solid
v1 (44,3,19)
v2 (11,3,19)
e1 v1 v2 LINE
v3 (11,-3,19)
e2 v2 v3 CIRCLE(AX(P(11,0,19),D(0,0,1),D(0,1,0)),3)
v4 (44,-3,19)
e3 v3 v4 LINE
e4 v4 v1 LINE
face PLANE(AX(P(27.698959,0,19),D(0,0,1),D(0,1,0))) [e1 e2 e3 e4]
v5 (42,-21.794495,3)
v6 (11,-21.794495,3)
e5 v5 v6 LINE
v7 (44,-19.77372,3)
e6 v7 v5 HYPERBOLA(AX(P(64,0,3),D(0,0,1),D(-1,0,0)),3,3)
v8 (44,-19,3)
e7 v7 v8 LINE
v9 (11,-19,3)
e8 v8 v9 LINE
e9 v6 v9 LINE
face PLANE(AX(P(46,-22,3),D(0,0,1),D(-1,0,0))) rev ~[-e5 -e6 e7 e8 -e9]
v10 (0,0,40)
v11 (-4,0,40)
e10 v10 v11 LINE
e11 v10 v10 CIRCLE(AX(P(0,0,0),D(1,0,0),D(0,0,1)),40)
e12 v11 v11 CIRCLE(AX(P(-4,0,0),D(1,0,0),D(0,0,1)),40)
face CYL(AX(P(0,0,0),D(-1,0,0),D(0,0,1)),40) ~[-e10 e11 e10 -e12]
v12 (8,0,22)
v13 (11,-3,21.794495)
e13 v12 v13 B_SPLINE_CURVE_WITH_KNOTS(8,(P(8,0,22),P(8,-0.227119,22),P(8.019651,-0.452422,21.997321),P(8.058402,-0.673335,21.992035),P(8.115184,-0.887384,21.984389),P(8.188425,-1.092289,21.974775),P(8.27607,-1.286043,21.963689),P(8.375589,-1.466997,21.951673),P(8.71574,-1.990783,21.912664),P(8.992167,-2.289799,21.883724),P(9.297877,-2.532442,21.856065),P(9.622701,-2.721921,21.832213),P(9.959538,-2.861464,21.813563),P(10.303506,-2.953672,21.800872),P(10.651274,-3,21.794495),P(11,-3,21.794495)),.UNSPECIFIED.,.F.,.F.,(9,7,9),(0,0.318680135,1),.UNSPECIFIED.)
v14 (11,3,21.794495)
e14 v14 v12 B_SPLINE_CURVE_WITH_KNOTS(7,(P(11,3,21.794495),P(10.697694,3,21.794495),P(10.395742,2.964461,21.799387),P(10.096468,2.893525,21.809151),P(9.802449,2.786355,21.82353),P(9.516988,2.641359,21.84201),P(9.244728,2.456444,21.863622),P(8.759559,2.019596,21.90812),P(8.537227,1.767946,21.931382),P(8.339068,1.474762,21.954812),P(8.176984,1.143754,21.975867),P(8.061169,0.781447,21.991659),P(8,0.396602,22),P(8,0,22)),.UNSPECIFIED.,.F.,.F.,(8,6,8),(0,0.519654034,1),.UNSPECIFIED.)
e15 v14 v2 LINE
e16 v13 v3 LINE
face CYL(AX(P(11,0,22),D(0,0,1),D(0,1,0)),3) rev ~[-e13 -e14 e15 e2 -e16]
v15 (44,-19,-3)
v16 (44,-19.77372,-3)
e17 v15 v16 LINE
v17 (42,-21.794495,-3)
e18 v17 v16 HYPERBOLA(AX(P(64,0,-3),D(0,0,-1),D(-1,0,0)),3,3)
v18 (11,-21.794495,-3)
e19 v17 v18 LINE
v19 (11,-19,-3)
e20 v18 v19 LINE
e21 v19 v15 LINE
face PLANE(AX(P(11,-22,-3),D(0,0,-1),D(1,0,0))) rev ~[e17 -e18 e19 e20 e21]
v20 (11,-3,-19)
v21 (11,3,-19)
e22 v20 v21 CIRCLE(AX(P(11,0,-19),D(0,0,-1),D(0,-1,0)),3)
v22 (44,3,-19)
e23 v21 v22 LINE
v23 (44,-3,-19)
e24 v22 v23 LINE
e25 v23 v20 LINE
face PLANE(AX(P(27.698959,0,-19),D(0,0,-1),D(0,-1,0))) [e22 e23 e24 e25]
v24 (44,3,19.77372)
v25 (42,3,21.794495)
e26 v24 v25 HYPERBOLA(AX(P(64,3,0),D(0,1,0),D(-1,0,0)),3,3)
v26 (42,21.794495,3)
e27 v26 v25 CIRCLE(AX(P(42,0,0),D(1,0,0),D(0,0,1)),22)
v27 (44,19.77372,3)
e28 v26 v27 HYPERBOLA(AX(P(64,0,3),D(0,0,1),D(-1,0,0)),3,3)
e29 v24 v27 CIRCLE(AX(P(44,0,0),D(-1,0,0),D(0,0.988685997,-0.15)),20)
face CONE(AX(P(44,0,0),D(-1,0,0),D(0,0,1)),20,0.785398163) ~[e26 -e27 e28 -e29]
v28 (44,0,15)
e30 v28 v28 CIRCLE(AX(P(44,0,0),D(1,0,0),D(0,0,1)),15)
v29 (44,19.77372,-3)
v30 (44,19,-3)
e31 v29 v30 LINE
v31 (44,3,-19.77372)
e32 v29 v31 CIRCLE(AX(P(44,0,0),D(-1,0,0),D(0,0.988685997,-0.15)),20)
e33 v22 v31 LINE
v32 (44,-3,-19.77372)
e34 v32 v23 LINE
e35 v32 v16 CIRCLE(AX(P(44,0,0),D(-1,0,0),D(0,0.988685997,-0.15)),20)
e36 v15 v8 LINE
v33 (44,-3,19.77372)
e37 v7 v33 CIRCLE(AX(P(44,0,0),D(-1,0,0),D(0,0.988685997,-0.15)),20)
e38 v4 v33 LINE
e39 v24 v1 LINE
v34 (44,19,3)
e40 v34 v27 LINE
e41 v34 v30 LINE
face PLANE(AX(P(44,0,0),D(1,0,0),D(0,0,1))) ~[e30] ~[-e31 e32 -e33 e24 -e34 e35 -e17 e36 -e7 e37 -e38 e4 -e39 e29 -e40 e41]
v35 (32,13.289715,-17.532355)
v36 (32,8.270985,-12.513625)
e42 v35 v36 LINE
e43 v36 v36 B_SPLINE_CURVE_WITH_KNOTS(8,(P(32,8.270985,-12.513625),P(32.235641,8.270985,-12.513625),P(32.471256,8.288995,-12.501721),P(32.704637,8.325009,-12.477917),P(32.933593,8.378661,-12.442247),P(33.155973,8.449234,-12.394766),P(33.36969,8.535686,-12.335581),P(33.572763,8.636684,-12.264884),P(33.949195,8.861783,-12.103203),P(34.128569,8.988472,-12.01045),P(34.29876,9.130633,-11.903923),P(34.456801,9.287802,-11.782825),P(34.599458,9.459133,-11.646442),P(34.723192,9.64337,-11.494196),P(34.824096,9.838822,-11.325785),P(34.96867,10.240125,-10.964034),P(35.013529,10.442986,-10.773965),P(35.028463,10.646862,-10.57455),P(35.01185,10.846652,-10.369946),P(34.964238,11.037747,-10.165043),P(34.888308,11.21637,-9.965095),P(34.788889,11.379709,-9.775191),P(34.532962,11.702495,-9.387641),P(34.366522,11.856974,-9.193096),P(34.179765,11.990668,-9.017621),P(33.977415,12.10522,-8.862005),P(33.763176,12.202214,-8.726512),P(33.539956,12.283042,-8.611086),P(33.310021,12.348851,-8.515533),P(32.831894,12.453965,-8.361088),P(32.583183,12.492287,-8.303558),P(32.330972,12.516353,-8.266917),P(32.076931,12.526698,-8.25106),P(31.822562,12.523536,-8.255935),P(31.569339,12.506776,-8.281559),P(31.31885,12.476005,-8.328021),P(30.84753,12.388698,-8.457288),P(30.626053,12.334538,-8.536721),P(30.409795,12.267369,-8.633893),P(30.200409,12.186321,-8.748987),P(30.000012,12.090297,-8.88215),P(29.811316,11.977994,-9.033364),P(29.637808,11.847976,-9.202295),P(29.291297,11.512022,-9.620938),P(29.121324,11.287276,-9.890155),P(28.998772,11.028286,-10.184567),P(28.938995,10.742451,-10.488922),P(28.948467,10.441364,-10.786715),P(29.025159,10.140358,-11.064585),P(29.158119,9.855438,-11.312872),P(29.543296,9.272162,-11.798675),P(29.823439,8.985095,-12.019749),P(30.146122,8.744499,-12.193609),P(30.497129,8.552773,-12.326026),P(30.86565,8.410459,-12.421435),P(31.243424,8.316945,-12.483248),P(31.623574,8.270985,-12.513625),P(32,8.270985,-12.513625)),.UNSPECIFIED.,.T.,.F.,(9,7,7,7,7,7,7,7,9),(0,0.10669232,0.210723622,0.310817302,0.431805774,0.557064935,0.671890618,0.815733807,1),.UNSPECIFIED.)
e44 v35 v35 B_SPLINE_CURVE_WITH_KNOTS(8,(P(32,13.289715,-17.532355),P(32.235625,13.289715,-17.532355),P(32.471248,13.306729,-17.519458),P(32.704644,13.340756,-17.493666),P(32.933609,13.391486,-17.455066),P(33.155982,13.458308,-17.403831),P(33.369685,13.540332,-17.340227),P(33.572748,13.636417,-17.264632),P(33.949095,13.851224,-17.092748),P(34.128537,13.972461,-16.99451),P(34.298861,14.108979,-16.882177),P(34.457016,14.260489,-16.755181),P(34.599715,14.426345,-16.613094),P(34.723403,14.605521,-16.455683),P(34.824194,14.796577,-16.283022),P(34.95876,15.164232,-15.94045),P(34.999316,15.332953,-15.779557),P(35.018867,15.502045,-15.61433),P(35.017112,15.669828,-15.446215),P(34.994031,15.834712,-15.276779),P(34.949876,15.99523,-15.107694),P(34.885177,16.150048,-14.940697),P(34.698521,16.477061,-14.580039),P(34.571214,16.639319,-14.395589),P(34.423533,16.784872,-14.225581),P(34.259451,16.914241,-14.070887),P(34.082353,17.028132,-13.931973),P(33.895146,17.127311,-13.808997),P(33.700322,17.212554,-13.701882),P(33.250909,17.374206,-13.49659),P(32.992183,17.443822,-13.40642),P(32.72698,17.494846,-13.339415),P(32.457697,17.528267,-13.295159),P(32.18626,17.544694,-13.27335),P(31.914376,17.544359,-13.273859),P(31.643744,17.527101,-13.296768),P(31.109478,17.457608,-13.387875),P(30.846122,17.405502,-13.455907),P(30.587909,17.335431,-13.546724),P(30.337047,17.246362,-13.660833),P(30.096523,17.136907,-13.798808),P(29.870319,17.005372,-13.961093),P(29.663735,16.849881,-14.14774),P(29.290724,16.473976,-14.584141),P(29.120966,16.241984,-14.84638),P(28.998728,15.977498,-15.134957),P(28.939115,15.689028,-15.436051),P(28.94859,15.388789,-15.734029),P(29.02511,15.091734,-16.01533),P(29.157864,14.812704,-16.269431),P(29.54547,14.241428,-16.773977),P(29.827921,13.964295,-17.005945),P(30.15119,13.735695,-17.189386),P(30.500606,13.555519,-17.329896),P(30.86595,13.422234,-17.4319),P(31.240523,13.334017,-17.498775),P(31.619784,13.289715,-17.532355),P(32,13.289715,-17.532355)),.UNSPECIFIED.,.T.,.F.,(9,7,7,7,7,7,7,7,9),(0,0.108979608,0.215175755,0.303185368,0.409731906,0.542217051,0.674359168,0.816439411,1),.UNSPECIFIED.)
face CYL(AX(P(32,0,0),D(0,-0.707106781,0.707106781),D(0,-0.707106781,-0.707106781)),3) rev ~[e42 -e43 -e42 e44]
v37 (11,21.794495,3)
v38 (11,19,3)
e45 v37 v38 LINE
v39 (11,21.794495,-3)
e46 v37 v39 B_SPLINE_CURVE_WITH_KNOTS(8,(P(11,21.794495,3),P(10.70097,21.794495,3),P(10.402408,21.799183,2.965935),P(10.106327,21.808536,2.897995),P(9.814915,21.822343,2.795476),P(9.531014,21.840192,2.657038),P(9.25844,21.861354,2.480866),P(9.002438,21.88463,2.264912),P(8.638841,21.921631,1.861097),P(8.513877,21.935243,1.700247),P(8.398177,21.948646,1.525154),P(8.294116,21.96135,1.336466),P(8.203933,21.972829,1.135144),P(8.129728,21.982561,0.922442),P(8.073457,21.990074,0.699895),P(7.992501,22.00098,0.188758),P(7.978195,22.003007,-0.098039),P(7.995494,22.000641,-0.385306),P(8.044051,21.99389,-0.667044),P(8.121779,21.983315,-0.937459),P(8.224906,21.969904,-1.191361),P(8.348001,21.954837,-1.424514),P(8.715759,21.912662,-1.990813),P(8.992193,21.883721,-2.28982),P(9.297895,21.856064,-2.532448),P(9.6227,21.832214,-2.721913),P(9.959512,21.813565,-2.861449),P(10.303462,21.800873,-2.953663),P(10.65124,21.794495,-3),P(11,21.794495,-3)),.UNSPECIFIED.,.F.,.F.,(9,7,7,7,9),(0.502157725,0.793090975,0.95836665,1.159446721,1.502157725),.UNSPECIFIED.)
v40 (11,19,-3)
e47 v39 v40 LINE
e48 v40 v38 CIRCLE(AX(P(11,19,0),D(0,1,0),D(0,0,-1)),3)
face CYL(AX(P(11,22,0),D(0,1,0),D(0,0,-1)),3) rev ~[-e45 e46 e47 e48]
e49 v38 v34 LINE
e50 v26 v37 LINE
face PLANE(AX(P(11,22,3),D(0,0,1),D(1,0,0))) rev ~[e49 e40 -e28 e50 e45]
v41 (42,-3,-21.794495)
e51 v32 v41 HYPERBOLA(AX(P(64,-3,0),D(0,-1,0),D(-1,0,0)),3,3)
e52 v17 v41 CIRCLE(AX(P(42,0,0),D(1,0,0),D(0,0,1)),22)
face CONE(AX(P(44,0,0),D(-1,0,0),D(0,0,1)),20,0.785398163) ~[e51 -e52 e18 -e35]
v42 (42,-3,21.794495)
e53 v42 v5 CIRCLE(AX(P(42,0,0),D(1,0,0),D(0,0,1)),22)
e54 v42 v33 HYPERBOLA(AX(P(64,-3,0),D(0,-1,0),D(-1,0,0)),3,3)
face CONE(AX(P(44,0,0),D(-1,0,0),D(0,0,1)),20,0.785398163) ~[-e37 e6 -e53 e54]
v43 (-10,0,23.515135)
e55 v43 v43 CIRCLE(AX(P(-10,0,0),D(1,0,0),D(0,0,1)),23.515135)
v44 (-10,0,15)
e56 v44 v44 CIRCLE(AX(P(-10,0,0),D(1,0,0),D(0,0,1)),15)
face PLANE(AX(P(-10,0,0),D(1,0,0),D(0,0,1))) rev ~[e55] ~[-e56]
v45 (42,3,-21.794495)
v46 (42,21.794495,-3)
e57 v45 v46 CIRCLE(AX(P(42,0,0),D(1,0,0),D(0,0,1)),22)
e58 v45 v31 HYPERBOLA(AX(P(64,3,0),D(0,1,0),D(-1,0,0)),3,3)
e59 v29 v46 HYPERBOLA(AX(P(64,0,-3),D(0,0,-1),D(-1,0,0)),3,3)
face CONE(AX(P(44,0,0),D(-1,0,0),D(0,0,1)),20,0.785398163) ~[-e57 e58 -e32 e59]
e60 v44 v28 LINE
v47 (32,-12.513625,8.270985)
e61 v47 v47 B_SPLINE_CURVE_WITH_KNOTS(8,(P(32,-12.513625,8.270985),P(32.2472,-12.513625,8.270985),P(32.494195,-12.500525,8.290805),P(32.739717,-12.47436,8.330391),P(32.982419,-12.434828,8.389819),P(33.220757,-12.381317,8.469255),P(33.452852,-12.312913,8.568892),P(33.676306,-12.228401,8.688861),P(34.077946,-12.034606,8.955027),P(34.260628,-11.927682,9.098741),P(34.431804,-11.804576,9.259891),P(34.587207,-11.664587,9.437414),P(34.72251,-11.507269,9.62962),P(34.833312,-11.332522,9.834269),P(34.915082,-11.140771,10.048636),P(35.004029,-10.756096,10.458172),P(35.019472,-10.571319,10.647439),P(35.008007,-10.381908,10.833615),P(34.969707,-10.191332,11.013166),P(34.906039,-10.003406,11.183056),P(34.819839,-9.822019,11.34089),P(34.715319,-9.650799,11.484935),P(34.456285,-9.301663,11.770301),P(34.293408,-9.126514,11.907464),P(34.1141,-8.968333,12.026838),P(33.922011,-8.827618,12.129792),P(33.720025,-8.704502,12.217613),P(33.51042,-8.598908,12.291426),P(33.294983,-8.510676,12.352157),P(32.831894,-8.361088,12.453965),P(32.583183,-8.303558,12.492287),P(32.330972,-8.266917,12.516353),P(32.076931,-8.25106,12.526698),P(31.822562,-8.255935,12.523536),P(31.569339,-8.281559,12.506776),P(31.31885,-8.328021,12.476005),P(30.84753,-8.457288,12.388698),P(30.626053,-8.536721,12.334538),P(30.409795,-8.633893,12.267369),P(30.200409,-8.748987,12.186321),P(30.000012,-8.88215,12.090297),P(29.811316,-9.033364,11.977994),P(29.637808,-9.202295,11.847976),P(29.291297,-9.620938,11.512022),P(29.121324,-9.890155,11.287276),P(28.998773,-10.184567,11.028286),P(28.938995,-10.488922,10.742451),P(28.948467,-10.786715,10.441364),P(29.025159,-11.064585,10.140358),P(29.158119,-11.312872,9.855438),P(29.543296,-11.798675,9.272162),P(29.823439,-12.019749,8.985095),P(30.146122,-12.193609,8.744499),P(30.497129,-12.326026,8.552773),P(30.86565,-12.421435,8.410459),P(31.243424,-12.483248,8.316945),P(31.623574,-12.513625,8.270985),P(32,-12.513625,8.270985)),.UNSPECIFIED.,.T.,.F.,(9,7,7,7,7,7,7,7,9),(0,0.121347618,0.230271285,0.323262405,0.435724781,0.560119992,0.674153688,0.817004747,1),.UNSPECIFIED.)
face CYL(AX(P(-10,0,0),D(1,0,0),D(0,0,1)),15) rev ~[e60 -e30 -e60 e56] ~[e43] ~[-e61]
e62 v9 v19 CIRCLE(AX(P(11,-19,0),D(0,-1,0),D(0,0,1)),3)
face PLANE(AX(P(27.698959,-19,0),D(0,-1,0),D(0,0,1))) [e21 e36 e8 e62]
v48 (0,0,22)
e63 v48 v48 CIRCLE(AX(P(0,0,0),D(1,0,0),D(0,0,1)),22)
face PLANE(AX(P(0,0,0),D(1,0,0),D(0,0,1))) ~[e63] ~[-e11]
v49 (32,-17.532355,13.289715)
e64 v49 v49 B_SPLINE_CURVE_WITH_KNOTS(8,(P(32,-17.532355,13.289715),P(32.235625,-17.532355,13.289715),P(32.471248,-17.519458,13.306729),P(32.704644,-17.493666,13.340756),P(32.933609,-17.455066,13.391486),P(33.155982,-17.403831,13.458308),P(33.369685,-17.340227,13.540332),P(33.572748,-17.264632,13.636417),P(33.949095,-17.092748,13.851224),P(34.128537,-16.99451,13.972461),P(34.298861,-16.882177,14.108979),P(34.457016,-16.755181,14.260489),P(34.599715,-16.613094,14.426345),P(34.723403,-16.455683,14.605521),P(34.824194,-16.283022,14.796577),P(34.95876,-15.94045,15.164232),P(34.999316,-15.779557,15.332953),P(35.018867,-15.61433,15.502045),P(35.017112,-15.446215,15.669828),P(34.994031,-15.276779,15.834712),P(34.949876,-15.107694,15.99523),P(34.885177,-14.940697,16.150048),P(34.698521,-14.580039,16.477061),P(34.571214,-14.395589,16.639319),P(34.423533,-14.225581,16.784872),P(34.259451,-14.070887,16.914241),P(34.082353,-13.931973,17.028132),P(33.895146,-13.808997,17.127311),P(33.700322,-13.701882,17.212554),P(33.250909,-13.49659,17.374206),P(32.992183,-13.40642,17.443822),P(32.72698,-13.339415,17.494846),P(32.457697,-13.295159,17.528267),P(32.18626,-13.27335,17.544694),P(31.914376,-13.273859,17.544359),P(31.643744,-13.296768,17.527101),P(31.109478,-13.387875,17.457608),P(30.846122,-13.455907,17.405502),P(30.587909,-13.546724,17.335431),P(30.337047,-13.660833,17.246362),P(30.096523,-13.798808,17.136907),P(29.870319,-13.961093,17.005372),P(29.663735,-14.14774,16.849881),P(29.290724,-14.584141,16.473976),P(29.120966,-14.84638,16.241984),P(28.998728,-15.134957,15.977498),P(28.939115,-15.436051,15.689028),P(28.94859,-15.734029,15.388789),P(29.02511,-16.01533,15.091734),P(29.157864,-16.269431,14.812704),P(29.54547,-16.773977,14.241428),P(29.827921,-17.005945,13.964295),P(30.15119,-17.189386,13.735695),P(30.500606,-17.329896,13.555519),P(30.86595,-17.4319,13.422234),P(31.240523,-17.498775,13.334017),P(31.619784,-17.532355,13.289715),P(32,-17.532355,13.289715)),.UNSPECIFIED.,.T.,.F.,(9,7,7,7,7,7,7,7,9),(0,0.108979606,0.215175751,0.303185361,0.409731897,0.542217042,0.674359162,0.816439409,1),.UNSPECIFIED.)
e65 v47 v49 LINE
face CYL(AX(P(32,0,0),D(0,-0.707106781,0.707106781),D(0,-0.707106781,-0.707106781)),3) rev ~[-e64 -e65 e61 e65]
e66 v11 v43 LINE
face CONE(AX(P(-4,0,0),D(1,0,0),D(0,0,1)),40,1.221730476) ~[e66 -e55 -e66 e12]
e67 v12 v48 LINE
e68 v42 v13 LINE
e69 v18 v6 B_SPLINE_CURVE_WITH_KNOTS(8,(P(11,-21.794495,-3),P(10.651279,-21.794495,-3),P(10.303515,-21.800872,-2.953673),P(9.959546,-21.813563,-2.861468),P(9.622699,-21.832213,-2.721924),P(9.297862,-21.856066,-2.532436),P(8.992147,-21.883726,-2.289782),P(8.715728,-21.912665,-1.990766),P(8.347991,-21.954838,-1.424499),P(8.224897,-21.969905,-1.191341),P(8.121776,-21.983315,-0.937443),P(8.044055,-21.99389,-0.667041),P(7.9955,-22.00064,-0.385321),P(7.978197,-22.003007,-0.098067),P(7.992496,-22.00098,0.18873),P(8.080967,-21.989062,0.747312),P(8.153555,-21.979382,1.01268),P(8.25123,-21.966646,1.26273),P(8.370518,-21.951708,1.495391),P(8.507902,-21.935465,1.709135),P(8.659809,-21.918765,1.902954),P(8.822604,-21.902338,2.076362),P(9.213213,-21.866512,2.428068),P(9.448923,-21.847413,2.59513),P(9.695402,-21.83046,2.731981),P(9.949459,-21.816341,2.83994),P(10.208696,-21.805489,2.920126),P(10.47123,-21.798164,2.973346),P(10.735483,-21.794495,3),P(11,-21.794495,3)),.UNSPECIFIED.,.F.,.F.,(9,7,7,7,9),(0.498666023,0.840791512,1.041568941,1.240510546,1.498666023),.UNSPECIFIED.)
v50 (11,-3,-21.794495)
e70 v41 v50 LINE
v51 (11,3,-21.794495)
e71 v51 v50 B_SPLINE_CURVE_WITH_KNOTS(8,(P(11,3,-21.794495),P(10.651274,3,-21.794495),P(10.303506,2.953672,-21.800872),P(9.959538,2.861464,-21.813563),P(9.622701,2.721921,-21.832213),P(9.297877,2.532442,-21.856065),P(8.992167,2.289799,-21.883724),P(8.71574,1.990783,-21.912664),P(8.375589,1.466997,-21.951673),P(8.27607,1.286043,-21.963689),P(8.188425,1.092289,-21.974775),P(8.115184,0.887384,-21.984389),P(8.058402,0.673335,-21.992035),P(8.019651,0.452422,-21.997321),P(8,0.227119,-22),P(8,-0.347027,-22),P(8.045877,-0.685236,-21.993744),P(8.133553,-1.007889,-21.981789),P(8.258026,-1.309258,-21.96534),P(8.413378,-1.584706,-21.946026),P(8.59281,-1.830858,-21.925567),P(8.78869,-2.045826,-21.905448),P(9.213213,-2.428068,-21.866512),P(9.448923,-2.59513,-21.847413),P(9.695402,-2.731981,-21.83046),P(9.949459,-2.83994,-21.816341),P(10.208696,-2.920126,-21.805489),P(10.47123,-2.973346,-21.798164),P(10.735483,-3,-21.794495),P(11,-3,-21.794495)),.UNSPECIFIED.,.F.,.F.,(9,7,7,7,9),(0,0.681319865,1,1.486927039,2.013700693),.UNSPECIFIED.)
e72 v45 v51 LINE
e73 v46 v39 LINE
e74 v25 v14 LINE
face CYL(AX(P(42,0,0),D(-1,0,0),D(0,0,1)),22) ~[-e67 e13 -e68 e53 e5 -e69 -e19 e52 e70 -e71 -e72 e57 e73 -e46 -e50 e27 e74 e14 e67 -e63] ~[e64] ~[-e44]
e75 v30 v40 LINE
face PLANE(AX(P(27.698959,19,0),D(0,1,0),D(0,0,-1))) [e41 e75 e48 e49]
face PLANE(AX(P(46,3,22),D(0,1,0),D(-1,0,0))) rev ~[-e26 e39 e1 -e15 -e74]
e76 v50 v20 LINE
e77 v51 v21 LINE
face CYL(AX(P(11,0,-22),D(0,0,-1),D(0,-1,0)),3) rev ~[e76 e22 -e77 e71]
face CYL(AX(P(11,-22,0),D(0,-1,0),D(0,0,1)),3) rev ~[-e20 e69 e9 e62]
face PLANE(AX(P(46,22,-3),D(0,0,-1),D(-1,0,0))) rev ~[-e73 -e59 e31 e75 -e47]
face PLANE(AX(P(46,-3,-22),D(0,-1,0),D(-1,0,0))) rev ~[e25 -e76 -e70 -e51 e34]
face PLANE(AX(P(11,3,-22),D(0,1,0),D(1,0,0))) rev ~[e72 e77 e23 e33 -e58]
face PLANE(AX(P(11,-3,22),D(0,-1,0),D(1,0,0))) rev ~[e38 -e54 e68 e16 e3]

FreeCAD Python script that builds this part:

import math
import FreeCAD as App
import Part
import Sketcher
Q = App.Units.Quantity


def add_polygon(sketch, points):
    """Adds a closed chain of lines whose ends are joined by coincident constraints."""
    first, n = sketch.GeometryCount, len(points)
    for a, b in zip(points, points[1:] + points[:1]):
        sketch.addGeometry(Part.LineSegment(App.Vector(*a, 0), App.Vector(*b, 0)), False)
    for i in range(n):
        sketch.addConstraint(Sketcher.Constraint("Coincident", first + i, 2, first + (i + 1) % n, 1))

doc = App.newDocument("Part")
body = doc.addObject("PartDesign::Body", "Body")

sketch1 = body.newObject("Sketcher::SketchObject", "Sketch")
sketch1.AttachmentSupport = (doc.getObject("XY_Plane"), [""])
sketch1.MapMode = "FlatFace"
add_polygon(sketch1, [(0, 40), (-4, 40), (-10, 23.5), (-10, 15), (44, 15), (44, 20), (42, 22), (0, 22)])
sketch1.addConstraint(Sketcher.Constraint("Horizontal", 0))
sketch1.addConstraint(Sketcher.Constraint("Vertical", 2))
sketch1.addConstraint(Sketcher.Constraint("Horizontal", 3))
sketch1.addConstraint(Sketcher.Constraint("Vertical", 4))
sketch1.addConstraint(Sketcher.Constraint("Horizontal", 6))
sketch1.addConstraint(Sketcher.Constraint("Vertical", 7))
sketch1.addConstraint(Sketcher.Constraint("PointOnObject", 6, 2, -2))
sketch1.addConstraint(Sketcher.Constraint("DistanceX", 0, 2, 0, 1, Q("4 mm")))
sketch1.addConstraint(Sketcher.Constraint("DistanceX", 3, 1, 3, 2, Q("54 mm")))
sketch1.addConstraint(Sketcher.Constraint("DistanceX", 6, 2, 6, 1, Q("42 mm")))
sketch1.addConstraint(Sketcher.Constraint("DistanceY", 4, 1, 4, 2, Q("5 mm")))
sketch1.addConstraint(Sketcher.Constraint("DistanceY", 7, 1, 7, 2, Q("18 mm")))
sketch1.addConstraint(Sketcher.Constraint("Angle", 1, Q("-110 deg")))
sketch1.addConstraint(Sketcher.Constraint("Angle", 5, Q("135 deg")))
sketch1.addConstraint(Sketcher.Constraint("DistanceY", -1, 1, 0, 2, Q("40 mm")))
sketch1.addConstraint(Sketcher.Constraint("DistanceX", 1, 2, -1, 1, Q("10 mm")))
revolution = body.newObject("PartDesign::Revolution", "Revolution")
revolution.Profile = sketch1
revolution.ReferenceAxis = (sketch1, ["H_Axis"])
revolution.Angle = 360

sketch2 = body.newObject("Sketcher::SketchObject", "Sketch001")
sketch2.AttachmentSupport = (doc.getObject("XZ_Plane"), [""])
sketch2.MapMode = "FlatFace"
sketch2.AttachmentOffset = App.Placement(App.Vector(0, 0, -22), App.Rotation())
sketch2.addGeometry(Part.LineSegment(App.Vector(46, 3, 0), App.Vector(46, -3, 0)), False)
sketch2.addGeometry(Part.LineSegment(App.Vector(46, -3, 0), App.Vector(11, -3, 0)), False)
sketch2.addGeometry(Part.ArcOfCircle(Part.Circle(App.Vector(11, 0, 0), App.Vector(0, 0, 1), 3), math.radians(90), math.radians(270)), False)
sketch2.addGeometry(Part.LineSegment(App.Vector(11, 3, 0), App.Vector(46, 3, 0)), False)
sketch2.addConstraint(Sketcher.Constraint("Coincident", 0, 2, 1, 1))
sketch2.addConstraint(Sketcher.Constraint("Tangent", 1, 2, 2, 2))
sketch2.addConstraint(Sketcher.Constraint("Tangent", 2, 1, 3, 1))
sketch2.addConstraint(Sketcher.Constraint("Coincident", 3, 2, 0, 1))
sketch2.addConstraint(Sketcher.Constraint("Vertical", 0))
sketch2.addConstraint(Sketcher.Constraint("Horizontal", 1))
sketch2.addConstraint(Sketcher.Constraint("Horizontal", 3))
sketch2.addConstraint(Sketcher.Constraint("PointOnObject", 2, 3, -1))
sketch2.addConstraint(Sketcher.Constraint("Radius", 2, Q("3 mm")))
sketch2.addConstraint(Sketcher.Constraint("DistanceX", 1, 2, 1, 1, Q("35 mm")))
sketch2.addConstraint(Sketcher.Constraint("DistanceX", -1, 1, 2, 3, Q("11 mm")))
pocket1 = body.newObject("PartDesign::Pocket", "Pocket")
pocket1.Profile = sketch2
pocket1.Length = 3
pocket1.Reversed = True
doc.recompute()

polarpattern = body.newObject("PartDesign::PolarPattern", "PolarPattern")
polarpattern.Originals = [pocket1]
polarpattern.Axis = (doc.getObject("X_Axis"), [""])
polarpattern.Angle = 360
polarpattern.Occurrences = 4
body.Tip = polarpattern

sketch3 = body.newObject("Sketcher::SketchObject", "Sketch002")
sketch3.Placement = App.Placement(App.Vector(0, 0, 0), App.Rotation(App.Vector(1, 0, 0), App.Vector(0, 0.707106781, 0.707106781), App.Vector(0, -0.707106781, 0.707106781), "ZXY"))
sketch3.addGeometry(Part.Circle(App.Vector(32, 0, 0), App.Vector(0, 0, 1), 3), False)
sketch3.addConstraint(Sketcher.Constraint("PointOnObject", 0, 3, -1))
sketch3.addConstraint(Sketcher.Constraint("Diameter", 0, Q("6 mm")))
sketch3.addConstraint(Sketcher.Constraint("DistanceX", -1, 1, 0, 3, Q("32 mm")))
pocket2 = body.newObject("PartDesign::Pocket", "Pocket001")
pocket2.Profile = sketch3
pocket2.Length = 80
pocket2.Midplane = True

doc.recompute()
